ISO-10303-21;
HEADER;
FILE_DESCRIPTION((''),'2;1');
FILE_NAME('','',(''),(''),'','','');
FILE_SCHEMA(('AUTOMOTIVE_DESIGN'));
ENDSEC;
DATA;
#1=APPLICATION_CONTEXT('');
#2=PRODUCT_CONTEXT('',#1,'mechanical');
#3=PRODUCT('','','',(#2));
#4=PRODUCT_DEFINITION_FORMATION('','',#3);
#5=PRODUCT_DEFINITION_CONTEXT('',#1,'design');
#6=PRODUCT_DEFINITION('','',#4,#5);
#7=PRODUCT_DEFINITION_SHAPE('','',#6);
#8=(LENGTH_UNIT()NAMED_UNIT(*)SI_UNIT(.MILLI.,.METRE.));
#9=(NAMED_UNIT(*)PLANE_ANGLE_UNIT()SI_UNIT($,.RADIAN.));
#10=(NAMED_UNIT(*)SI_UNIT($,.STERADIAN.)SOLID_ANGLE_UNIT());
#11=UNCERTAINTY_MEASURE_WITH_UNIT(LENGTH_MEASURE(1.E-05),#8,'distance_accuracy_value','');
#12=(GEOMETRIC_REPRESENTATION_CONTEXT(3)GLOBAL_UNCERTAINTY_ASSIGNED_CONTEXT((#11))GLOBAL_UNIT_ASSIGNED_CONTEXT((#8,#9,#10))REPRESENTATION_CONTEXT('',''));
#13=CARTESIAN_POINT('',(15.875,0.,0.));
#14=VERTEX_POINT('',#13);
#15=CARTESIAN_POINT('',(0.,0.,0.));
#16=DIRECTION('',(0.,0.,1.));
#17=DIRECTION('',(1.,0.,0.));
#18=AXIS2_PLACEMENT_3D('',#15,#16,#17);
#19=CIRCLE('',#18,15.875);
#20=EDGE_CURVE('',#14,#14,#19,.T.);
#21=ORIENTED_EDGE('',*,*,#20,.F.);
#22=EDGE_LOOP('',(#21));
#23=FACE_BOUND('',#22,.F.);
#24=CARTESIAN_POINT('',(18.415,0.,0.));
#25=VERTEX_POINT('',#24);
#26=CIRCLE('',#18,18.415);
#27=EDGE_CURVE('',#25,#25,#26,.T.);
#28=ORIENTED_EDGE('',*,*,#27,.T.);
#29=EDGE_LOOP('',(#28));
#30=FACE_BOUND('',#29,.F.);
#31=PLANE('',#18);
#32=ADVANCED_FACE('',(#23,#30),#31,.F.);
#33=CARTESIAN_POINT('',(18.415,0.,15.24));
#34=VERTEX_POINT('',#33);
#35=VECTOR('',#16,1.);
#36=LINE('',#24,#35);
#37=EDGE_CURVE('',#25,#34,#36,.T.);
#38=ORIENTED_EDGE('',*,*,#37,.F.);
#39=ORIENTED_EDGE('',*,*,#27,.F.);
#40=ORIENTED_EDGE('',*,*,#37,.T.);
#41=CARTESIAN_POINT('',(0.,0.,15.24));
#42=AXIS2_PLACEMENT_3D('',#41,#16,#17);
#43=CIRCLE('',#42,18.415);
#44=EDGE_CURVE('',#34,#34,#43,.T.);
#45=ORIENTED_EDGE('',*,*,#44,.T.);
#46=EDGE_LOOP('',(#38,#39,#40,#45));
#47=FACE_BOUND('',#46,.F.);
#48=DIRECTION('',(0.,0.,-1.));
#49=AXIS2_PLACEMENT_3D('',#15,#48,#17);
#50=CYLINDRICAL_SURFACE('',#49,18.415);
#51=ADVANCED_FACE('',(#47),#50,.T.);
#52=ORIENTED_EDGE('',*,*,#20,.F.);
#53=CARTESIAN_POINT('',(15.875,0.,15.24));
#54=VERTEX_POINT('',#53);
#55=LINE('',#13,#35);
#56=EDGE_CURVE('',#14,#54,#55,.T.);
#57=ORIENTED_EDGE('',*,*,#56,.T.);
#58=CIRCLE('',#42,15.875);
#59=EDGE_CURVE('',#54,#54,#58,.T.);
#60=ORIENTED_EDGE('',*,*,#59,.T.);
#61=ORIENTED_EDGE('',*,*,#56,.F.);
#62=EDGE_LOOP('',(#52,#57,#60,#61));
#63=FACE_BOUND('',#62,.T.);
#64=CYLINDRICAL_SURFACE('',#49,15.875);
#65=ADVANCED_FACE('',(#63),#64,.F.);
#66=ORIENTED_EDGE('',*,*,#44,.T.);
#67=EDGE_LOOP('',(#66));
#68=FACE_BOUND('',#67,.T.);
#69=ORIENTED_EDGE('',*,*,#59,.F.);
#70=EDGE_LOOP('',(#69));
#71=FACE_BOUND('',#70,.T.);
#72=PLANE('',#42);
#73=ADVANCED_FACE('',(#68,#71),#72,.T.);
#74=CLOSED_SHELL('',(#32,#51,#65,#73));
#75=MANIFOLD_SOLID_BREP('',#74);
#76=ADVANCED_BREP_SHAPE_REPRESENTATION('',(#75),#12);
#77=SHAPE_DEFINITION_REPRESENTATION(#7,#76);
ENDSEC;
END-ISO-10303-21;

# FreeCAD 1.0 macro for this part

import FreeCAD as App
import Part
import Sketcher

V = App.Vector
Q = App.Units.Quantity

doc = App.newDocument("Part")
body = doc.addObject("PartDesign::Body", "Body")

sketch1 = doc.addObject("Sketcher::SketchObject", "Sketch")
body.addObject(sketch1)
sketch1.AttachmentSupport = (doc.XY_Plane, [""])
sketch1.MapMode = "FlatFace"
sketch1.addGeometry(Part.Circle(V(0, 0, 0), V(0, 0, 1), 18.415), False)
sketch1.addGeometry(Part.Circle(V(0, 0, 0), V(0, 0, 1), 15.875), False)
sketch1.addConstraint(Sketcher.Constraint("Coincident", 0, 3, -1, 1))
sketch1.addConstraint(Sketcher.Constraint("Coincident", 1, 3, -1, 1))
sketch1.addConstraint(Sketcher.Constraint("Diameter", 0, Q("1.45 in")))
sketch1.addConstraint(Sketcher.Constraint("Diameter", 1, Q("1.25 in")))
pad1 = doc.addObject("PartDesign::Pad", "Pad")
body.addObject(pad1)
pad1.Profile = sketch1
pad1.Length = Q("0.6 in")

doc.recompute()
